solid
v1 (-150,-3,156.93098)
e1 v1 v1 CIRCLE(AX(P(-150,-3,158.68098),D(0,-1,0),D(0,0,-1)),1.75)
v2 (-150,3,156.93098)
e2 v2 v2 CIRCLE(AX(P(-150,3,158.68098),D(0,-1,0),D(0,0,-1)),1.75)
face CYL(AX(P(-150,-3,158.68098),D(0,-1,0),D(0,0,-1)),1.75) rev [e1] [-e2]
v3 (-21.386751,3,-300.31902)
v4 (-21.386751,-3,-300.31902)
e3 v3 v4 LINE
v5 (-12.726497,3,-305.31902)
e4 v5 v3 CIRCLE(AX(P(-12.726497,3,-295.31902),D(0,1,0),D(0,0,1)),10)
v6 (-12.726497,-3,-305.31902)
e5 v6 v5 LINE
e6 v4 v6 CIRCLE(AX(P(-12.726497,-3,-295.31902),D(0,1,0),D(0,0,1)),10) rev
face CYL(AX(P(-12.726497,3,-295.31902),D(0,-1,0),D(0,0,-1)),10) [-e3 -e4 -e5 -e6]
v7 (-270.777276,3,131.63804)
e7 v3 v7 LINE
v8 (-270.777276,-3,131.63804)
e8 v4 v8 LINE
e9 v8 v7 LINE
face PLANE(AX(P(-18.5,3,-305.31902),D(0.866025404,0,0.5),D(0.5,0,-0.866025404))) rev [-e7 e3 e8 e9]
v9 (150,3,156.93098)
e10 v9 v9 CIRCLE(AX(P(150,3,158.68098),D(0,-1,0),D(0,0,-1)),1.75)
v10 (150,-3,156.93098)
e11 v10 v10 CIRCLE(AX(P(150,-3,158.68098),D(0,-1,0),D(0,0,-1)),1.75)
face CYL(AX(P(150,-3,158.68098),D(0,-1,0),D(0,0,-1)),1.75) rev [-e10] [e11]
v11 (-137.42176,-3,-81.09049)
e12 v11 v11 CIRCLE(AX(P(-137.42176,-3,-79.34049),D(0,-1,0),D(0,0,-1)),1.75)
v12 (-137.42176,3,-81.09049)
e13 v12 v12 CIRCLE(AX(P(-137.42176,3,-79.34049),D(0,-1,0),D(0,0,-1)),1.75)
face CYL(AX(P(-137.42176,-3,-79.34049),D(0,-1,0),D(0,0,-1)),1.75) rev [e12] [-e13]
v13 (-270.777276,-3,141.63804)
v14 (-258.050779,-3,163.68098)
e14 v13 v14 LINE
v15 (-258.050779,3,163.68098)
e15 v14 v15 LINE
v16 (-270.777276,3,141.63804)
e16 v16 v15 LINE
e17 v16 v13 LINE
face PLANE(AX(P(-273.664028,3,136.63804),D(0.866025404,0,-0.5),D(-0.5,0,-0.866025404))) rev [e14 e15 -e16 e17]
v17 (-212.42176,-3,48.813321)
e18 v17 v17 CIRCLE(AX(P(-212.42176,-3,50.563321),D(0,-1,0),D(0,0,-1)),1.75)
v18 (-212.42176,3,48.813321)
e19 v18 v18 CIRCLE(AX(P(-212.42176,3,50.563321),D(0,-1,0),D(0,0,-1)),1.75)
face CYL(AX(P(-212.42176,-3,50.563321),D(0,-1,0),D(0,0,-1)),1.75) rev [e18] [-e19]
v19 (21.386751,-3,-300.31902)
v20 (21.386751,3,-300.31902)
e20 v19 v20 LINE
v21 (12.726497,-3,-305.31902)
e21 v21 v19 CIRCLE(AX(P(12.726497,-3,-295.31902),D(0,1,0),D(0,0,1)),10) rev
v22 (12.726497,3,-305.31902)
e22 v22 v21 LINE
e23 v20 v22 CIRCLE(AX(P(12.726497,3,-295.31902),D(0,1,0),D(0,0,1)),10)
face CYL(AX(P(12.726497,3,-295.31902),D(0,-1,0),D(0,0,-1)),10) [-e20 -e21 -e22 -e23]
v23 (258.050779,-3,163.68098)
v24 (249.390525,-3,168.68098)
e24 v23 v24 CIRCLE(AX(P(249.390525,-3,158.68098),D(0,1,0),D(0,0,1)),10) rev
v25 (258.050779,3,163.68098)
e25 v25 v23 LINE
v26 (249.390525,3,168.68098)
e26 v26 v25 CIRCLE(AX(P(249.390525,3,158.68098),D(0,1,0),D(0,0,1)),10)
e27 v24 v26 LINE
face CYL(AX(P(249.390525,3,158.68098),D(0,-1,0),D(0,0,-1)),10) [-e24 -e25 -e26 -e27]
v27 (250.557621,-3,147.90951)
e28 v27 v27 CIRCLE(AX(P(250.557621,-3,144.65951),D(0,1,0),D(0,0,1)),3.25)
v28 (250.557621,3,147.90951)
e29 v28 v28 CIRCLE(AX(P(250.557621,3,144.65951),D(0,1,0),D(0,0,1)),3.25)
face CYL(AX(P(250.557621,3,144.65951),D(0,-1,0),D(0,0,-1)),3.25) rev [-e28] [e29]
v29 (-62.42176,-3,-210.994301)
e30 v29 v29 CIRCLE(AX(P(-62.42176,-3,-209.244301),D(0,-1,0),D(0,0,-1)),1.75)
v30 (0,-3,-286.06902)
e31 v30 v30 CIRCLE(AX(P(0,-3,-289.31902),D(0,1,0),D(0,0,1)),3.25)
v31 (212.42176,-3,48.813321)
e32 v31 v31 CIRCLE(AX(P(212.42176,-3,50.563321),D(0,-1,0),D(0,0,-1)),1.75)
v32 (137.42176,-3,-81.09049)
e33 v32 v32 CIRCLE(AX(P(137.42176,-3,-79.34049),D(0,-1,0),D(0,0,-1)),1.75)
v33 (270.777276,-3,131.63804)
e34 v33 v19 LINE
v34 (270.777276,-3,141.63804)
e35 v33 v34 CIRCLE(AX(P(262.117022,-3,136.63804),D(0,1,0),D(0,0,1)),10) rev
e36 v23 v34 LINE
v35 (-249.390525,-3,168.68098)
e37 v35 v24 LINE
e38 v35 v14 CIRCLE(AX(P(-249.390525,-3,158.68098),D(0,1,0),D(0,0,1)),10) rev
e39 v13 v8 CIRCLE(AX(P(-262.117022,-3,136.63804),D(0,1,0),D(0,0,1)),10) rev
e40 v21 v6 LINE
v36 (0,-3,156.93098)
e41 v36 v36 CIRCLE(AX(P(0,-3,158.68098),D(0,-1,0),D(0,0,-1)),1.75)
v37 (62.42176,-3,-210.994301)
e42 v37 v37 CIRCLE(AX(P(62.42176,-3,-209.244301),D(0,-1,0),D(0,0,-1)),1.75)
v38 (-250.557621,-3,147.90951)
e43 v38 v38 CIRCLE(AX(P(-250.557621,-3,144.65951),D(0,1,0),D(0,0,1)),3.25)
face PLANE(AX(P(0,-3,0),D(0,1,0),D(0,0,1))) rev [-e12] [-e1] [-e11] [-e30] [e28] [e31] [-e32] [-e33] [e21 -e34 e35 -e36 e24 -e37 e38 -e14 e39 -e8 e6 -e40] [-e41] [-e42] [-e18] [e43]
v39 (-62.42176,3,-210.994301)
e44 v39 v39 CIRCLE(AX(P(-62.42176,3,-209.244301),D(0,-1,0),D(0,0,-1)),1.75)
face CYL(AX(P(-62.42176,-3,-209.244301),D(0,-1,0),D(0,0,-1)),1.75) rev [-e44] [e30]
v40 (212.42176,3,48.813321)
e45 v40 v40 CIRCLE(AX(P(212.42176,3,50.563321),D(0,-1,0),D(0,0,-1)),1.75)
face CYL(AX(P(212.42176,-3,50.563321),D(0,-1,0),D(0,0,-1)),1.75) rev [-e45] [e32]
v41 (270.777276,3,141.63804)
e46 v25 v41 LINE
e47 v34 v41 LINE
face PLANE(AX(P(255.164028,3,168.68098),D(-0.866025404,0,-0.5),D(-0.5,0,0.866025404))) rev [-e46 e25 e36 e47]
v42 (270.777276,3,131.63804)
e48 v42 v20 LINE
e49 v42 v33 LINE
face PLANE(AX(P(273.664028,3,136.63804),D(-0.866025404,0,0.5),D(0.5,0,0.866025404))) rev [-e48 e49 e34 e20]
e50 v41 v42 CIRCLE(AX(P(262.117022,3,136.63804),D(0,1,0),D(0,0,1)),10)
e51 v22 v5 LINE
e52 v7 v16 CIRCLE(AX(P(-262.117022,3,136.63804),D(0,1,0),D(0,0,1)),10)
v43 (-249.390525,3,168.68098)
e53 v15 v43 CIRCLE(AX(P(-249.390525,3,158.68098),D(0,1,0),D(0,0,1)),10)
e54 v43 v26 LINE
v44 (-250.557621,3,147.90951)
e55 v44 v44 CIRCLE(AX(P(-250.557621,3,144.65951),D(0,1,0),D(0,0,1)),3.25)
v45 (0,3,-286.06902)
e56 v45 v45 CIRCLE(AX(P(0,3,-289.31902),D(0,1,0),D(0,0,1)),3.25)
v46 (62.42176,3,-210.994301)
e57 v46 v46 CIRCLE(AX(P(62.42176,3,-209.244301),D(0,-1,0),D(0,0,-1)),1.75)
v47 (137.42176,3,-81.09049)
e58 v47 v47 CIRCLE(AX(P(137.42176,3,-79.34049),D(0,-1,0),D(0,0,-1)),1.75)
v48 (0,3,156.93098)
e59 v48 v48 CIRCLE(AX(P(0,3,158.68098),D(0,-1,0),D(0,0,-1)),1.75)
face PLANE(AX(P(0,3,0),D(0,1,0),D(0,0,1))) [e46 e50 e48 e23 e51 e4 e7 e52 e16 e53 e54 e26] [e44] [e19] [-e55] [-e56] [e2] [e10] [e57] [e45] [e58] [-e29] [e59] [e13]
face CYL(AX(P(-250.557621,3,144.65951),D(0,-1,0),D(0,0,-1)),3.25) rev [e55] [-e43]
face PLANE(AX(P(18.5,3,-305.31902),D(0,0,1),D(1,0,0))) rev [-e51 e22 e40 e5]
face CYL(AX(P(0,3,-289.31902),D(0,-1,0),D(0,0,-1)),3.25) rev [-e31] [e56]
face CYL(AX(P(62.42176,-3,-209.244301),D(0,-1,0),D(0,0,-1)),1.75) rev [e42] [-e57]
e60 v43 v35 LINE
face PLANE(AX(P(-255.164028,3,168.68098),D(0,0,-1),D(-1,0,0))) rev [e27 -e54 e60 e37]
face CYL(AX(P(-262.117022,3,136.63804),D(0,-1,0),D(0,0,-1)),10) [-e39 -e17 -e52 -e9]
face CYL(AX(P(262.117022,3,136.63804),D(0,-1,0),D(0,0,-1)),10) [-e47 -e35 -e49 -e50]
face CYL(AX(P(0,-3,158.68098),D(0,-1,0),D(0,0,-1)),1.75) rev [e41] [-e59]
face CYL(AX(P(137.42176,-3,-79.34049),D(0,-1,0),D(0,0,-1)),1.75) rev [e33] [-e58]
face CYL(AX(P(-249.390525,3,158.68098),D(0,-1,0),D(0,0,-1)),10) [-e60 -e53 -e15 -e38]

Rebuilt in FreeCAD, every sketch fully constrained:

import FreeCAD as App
import Part
import Sketcher
Q = App.Units.Quantity


def edges_at(feature, points):
    """Names of the edges that pass closest to the given points."""
    edges = feature.Shape.Edges
    near = lambda p: min(range(len(edges)), key=lambda i: edges[i].distToShape(Part.Vertex(*p))[0])
    return sorted({f"Edge{near(p) + 1}" for p in points})


def add_polygon(sketch, points):
    """Adds a closed chain of lines whose ends are joined by coincident constraints."""
    first, n = sketch.GeometryCount, len(points)
    for a, b in zip(points, points[1:] + points[:1]):
        sketch.addGeometry(Part.LineSegment(App.Vector(*a, 0), App.Vector(*b, 0)), False)
    for i in range(n):
        sketch.addConstraint(Sketcher.Constraint("Coincident", first + i, 2, first + (i + 1) % n, 1))

doc = App.newDocument("Part")
body = doc.addObject("PartDesign::Body", "Body")

sketch1 = body.newObject("Sketcher::SketchObject", "Sketch")
sketch1.AttachmentSupport = (doc.getObject("XZ_Plane"), [""])
sketch1.MapMode = "FlatFace"
add_polygon(sketch1, [(273.7, 136.6), (18.5, -305.3), (-18.5, -305.3), (-273.7, 136.6), (-255.2, 168.7), (255.2, 168.7)])
sketch1.addGeometry(Part.Circle(App.Vector(-250.6, 144.7, 0), App.Vector(0, 0, 1), 3.2), False)
sketch1.addGeometry(Part.Circle(App.Vector(250.6, 144.7, 0), App.Vector(0, 0, 1), 3.2), False)
sketch1.addGeometry(Part.Circle(App.Vector(0, -289.3, 0), App.Vector(0, 0, 1), 3.2), False)
sketch1.addConstraint(Sketcher.Constraint("Horizontal", 1))
sketch1.addConstraint(Sketcher.Constraint("Horizontal", 4))
sketch1.addConstraint(Sketcher.Constraint("Equal", 6, 7))
sketch1.addConstraint(Sketcher.Constraint("Equal", 7, 8))
sketch1.addConstraint(Sketcher.Constraint("Symmetric", 6, 3, 7, 3, -2))
sketch1.addConstraint(Sketcher.Constraint("Symmetric", 2, 2, 5, 2, -2))
sketch1.addConstraint(Sketcher.Constraint("PointOnObject", 8, 3, -2))
sketch1.addConstraint(Sketcher.Constraint("Parallel", 0, 3))
sketch1.addConstraint(Sketcher.Constraint("Parallel", 2, 5))
sketch1.addConstraint(Sketcher.Constraint("Equal", 0, 2))
sketch1.addConstraint(Sketcher.Constraint("Diameter", 6, 6.5))
sketch1.addConstraint(Sketcher.Constraint("DistanceX", 1, 2, 1, 1, 37.0))
sketch1.addConstraint(Sketcher.Constraint("Angle", 0, Q("-120 deg")))
sketch1.addConstraint(Sketcher.Constraint("Distance", 3, 37.0))
sketch1.addConstraint(Sketcher.Constraint("DistanceY", 0, 2, 8, 3, 16.0))
sketch1.addConstraint(Sketcher.Constraint("DistanceY", 8, 3, 3, 2, 458.0))
sketch1.addConstraint(Sketcher.Constraint("DistanceX", 6, 3, -1, 1, 250.557621))
sketch1.addConstraint(Sketcher.Constraint("DistanceY", -1, 1, 6, 3, 144.65951))
sketch1.addConstraint(Sketcher.Constraint("DistanceY", 8, 3, -1, 1, 289.31902))
pad1 = body.newObject("PartDesign::Pad", "Pad")
pad1.Profile = sketch1
pad1.Length = 6
pad1.Midplane = True
doc.recompute()

fillet = body.newObject("PartDesign::Fillet", "Fillet")
fillet.Base = (pad1, edges_at(pad1, [
    (255.164, 0, 168.681),
    (-255.164, 0, 168.681),
    (-273.664, 0, 136.638),
    (-18.5, 0, -305.319),
    (18.5, 0, -305.319),
    (273.664, 0, 136.638),
]))
fillet.Radius = 10

sketch2 = body.newObject("Sketcher::SketchObject", "Sketch001")
sketch2.AttachmentSupport = (doc.getObject("XZ_Plane"), [""])
sketch2.MapMode = "FlatFace"
sketch2.AttachmentOffset = App.Placement(App.Vector(0, 0, 3), App.Rotation())
sketch2.addGeometry(Part.Circle(App.Vector(-150, 158.7, 0), App.Vector(0, 0, 1), 1.8), False)
sketch2.addGeometry(Part.Circle(App.Vector(0, 158.7, 0), App.Vector(0, 0, 1), 1.8), False)
sketch2.addGeometry(Part.Circle(App.Vector(150, 158.7, 0), App.Vector(0, 0, 1), 1.8), False)
sketch2.addGeometry(Part.Circle(App.Vector(212.4, 50.6, 0), App.Vector(0, 0, 1), 1.8), False)
sketch2.addGeometry(Part.Circle(App.Vector(137.4, -79.3, 0), App.Vector(0, 0, 1), 1.8), False)
sketch2.addGeometry(Part.Circle(App.Vector(62.4, -209.2, 0), App.Vector(0, 0, 1), 1.8), False)
sketch2.addGeometry(Part.Circle(App.Vector(-62.4, -209.2, 0), App.Vector(0, 0, 1), 1.8), False)
sketch2.addGeometry(Part.Circle(App.Vector(-137.4, -79.3, 0), App.Vector(0, 0, 1), 1.8), False)
sketch2.addGeometry(Part.Circle(App.Vector(-212.4, 50.6, 0), App.Vector(0, 0, 1), 1.8), False)
sketch2.addConstraint(Sketcher.Constraint("Equal", 0, 1))
sketch2.addConstraint(Sketcher.Constraint("Equal", 1, 2))
sketch2.addConstraint(Sketcher.Constraint("Equal", 2, 3))
sketch2.addConstraint(Sketcher.Constraint("Equal", 3, 4))
sketch2.addConstraint(Sketcher.Constraint("Equal", 4, 5))
sketch2.addConstraint(Sketcher.Constraint("Equal", 5, 6))
sketch2.addConstraint(Sketcher.Constraint("Equal", 6, 7))
sketch2.addConstraint(Sketcher.Constraint("Equal", 7, 8))
sketch2.addConstraint(Sketcher.Constraint("Symmetric", 0, 3, 2, 3, -2))
sketch2.addConstraint(Sketcher.Constraint("Symmetric", 5, 3, 6, 3, -2))
sketch2.addConstraint(Sketcher.Constraint("Symmetric", 4, 3, 7, 3, -2))
sketch2.addConstraint(Sketcher.Constraint("Symmetric", 3, 3, 8, 3, -2))
sketch2.addConstraint(Sketcher.Constraint("PointOnObject", 1, 3, -2))
sketch2.addConstraint(Sketcher.Constraint("Horizontal", 0, 3, 1, 3))
sketch2.addConstraint(Sketcher.Constraint("Diameter", 0, 3.5))
sketch2.addConstraint(Sketcher.Constraint("DistanceX", 0, 3, -1, 1, 150.0))
sketch2.addConstraint(Sketcher.Constraint("DistanceX", 4, 3, 3, 3, 75.0))
sketch2.addConstraint(Sketcher.Constraint("DistanceX", 5, 3, 4, 3, 75.0))
sketch2.addConstraint(Sketcher.Constraint("DistanceY", 5, 3, -1, 1, 209.244301))
sketch2.addConstraint(Sketcher.Constraint("DistanceY", -1, 1, 0, 3, 158.68098))
sketch2.addConstraint(Sketcher.Constraint("DistanceX", -1, 1, 3, 3, 212.42176))
sketch2.addConstraint(Sketcher.Constraint("DistanceY", -1, 1, 3, 3, 50.563321))
sketch2.addConstraint(Sketcher.Constraint("DistanceY", 4, 3, -1, 1, 79.34049))
doc.recompute()
hole = body.newObject("PartDesign::Hole", "Hole")
hole.Profile = sketch2
hole.ThreadType = "None"
hole.Diameter = 3.5
hole.DepthType = "ThroughAll"

doc.recompute()
